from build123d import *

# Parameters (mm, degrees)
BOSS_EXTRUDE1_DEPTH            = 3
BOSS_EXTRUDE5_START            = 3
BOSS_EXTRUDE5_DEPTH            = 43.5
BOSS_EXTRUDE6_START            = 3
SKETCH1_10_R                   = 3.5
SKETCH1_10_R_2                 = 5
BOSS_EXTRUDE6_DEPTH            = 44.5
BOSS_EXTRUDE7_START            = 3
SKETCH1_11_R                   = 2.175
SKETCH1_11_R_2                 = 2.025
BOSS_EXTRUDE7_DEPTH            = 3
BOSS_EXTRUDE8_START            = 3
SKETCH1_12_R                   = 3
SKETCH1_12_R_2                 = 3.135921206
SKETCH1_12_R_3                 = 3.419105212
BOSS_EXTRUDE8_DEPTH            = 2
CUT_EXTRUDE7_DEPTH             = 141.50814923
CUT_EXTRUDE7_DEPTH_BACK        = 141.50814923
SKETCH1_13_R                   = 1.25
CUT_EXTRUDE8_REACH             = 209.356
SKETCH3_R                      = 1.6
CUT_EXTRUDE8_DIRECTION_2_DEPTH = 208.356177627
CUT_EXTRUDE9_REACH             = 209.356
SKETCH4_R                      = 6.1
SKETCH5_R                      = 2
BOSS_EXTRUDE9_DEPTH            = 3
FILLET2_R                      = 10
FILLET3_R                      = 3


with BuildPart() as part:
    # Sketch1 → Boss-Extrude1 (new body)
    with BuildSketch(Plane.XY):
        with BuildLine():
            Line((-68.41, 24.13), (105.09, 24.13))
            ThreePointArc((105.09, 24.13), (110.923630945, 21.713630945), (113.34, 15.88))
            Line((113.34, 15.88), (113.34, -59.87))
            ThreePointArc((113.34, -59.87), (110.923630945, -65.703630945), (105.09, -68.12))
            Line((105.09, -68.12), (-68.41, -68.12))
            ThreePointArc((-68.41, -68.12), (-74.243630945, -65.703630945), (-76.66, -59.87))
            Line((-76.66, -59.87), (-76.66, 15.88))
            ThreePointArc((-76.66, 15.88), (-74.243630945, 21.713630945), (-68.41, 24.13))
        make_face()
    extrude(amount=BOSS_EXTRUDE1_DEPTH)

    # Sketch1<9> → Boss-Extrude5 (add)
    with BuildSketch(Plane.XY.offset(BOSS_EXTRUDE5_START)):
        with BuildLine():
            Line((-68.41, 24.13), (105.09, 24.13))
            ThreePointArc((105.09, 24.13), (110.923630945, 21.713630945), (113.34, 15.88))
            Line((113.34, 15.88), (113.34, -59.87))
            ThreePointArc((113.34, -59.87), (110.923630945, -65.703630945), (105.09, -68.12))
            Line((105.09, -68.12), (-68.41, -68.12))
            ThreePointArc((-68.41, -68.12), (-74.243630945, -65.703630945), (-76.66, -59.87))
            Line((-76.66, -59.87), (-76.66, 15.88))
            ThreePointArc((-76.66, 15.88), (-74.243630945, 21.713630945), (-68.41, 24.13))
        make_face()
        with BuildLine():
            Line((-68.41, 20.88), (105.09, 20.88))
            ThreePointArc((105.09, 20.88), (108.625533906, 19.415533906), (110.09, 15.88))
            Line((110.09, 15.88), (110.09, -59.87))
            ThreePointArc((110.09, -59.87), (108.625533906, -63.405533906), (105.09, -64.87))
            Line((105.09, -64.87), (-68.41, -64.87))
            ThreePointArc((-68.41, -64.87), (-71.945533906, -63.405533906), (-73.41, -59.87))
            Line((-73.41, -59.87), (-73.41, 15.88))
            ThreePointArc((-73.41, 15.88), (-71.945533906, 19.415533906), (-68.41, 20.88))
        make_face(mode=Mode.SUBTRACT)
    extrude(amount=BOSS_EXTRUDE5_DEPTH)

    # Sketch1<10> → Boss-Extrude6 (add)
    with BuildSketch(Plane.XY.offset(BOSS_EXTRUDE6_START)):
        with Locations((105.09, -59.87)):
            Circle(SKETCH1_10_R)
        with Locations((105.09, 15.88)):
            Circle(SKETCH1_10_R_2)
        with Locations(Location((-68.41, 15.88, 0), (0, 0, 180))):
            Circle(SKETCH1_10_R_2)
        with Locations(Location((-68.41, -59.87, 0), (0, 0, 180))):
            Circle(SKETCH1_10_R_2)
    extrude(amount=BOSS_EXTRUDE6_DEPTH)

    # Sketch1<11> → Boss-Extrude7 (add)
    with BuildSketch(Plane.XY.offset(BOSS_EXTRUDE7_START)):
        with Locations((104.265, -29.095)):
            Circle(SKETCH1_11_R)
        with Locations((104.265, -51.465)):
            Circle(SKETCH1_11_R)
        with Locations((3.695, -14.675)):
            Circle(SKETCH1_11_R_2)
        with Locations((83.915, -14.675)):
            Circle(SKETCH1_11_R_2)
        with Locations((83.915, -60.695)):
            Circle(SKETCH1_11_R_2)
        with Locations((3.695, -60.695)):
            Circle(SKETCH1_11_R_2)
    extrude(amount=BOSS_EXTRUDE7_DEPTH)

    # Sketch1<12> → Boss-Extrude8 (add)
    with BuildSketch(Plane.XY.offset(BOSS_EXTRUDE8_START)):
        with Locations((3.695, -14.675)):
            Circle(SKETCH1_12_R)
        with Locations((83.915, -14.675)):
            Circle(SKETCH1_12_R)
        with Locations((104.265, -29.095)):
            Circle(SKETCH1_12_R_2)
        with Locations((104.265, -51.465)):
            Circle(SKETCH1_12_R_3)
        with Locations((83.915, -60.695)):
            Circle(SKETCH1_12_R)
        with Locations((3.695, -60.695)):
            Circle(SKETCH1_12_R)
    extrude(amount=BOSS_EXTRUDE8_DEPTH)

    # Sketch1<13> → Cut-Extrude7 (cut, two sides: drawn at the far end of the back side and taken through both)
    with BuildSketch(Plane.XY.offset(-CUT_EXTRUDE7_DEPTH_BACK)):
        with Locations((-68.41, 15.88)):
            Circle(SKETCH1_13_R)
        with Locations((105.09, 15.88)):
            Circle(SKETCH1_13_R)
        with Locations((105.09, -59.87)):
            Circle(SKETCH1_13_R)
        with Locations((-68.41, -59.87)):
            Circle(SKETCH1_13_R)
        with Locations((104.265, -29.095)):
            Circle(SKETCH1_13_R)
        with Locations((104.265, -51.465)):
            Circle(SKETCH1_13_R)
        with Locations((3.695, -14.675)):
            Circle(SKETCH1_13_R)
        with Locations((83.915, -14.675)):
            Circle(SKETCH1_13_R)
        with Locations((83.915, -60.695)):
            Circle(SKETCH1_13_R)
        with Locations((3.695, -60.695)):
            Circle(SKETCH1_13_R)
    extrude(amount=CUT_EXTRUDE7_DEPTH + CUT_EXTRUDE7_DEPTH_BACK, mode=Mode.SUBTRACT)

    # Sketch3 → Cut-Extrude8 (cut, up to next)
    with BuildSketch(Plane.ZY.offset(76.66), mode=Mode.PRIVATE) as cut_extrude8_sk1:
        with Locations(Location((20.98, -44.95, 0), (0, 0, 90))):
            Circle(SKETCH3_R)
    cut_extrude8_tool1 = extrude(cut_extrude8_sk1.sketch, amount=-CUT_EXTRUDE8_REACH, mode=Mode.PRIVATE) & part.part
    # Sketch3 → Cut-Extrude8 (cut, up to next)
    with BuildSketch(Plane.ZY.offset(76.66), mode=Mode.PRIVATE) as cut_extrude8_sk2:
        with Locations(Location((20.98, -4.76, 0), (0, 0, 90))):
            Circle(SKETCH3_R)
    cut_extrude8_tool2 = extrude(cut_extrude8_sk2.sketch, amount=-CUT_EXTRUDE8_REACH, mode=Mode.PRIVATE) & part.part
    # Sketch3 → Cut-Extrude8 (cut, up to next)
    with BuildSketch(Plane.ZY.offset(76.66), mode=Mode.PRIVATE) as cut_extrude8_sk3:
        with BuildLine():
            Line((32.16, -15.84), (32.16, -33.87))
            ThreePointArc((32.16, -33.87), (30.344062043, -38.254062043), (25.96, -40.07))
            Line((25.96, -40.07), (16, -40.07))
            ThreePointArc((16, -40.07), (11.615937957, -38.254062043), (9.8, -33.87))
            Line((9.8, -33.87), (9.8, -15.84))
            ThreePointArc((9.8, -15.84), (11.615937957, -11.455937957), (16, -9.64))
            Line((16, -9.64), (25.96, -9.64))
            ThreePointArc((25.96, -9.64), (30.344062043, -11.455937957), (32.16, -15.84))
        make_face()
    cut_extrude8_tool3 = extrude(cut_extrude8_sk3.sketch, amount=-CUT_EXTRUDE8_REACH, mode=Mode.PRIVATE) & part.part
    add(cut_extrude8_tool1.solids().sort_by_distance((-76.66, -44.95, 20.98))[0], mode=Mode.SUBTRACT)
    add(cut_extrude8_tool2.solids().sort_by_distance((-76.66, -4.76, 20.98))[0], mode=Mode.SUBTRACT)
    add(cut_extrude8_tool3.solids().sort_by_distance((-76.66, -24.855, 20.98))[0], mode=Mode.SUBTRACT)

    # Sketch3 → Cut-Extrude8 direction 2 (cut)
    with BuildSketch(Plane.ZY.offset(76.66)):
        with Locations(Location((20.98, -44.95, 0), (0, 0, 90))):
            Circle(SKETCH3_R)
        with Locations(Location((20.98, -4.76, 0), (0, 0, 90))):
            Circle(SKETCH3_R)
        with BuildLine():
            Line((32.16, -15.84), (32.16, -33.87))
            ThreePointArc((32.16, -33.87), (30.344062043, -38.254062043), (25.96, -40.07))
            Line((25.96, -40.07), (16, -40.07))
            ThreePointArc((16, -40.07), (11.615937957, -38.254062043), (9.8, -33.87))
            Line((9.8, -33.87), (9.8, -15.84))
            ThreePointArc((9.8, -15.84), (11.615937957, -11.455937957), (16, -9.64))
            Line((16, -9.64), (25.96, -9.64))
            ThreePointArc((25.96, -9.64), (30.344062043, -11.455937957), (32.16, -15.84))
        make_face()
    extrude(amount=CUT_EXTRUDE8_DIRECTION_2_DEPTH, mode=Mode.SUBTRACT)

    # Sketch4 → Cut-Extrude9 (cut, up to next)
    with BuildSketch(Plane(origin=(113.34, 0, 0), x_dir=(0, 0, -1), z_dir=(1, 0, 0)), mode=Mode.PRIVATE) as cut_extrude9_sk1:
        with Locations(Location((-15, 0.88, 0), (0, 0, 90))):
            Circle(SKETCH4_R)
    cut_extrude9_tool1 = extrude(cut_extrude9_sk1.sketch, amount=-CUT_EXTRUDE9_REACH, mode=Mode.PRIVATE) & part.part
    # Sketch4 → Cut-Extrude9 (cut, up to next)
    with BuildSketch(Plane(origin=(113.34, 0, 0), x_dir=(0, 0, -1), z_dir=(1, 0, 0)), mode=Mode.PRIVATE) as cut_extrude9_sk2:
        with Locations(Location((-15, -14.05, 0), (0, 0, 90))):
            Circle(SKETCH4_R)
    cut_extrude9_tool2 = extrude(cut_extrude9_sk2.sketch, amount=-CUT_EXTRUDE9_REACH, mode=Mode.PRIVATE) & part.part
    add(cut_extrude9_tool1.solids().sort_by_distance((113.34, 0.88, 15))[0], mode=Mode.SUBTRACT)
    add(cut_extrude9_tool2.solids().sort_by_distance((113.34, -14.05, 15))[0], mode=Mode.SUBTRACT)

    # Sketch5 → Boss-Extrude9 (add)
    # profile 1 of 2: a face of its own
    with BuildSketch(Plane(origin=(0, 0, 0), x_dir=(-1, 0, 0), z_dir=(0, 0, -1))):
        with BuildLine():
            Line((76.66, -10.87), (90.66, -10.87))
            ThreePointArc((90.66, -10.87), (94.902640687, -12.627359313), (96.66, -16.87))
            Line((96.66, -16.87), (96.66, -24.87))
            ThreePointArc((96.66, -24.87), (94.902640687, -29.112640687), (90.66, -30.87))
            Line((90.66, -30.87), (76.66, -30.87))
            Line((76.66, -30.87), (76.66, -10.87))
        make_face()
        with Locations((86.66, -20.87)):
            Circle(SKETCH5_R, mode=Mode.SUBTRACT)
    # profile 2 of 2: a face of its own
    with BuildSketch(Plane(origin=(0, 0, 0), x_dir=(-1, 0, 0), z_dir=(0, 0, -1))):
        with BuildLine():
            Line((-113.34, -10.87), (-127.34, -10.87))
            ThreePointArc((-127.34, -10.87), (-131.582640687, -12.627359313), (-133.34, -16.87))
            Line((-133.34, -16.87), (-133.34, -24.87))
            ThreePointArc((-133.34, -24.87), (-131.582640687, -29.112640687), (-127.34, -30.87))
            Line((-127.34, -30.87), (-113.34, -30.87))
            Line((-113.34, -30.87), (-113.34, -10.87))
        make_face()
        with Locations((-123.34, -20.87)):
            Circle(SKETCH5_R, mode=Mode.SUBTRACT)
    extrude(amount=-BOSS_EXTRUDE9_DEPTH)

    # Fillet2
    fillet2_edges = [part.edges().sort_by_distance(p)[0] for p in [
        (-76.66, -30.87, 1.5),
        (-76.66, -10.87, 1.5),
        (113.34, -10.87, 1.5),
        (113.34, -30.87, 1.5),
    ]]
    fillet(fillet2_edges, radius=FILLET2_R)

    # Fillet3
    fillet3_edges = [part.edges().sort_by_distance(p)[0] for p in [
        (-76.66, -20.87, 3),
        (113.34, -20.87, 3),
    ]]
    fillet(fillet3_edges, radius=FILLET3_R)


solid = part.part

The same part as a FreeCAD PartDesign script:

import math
import FreeCAD as App
import Part
import Sketcher

V = App.Vector
Q = App.Units.Quantity


def edges_at(feature, points):
    """Names of the edges that pass closest to the given points."""
    edges = feature.Shape.Edges
    near = lambda p: min(range(len(edges)), key=lambda i: edges[i].distToShape(Part.Vertex(*p))[0])
    return sorted({f"Edge{near(p) + 1}" for p in points})

doc = App.newDocument("Part")
params = doc.addObject("Spreadsheet::Sheet", "Params")
for row, (alias, value) in enumerate([
    ("sketch1_radius", "8.25 mm"),
    ("sketch1_width", "173.5 mm"),
    ("pad1_length", "3 mm"),
    ("sketch2_radius", "5 mm"),
    ("sketch2_radius2", "8.25 mm"),
    ("sketch2_width", "173.5 mm"),
    ("pad2_length", "43.5 mm"),
    ("sketch3_diameter", "7 mm"),
    ("sketch3_diameter2", "10 mm"),
    ("pad3_length", "44.5 mm"),
    ("sketch4_diameter", "4.35 mm"),
    ("sketch4_diameter2", "4.05 mm"),
    ("pad4_length", "3 mm"),
    ("sketch5_diameter", "6 mm"),
    ("pad5_length", "2 mm"),
    ("sketch6_diameter", "2.5 mm"),
    ("sketch7_diameter", "3.2 mm"),
    ("sketch8_diameter", "3.2 mm"),
    ("sketch9_radius", "6.2 mm"),
    ("sketch9_width", "18.03 mm"),
    ("sketch9_height", "9.96 mm"),
    ("sketch10_diameter", "3.2 mm"),
    ("sketch10_radius", "6.2 mm"),
    ("sketch10_width", "18.03 mm"),
    ("sketch10_height", "9.96 mm"),
    ("pocket5_length", "208.356178 mm"),
    ("sketch11_diameter", "12.2 mm"),
    ("sketch12_diameter", "12.2 mm"),
    ("sketch13_diameter", "4 mm"),
    ("sketch13_radius", "6 mm"),
    ("sketch13_width", "14 mm"),
    ("sketch13_height", "20 mm"),
    ("pad6_length", "3 mm"),
    ("fillet_radius", "10 mm"),
    ("fillet2_radius", "3 mm"),
], start=1):
    params.set(f"A{row}", alias)
    params.set(f"B{row}", "=" + value)
    params.setAlias(f"B{row}", alias)

body = doc.addObject("PartDesign::Body", "Body")

sketch1 = body.newObject("Sketcher::SketchObject", "Sketch")
sketch1.AttachmentSupport = (doc.getObject("XY_Plane"), [""])
sketch1.MapMode = "FlatFace"
sketch1.addGeometry([
    Part.LineSegment(V(105.09, 24.13, 0), V(-68.41, 24.13, 0)),
    Part.ArcOfCircle(Part.Circle(V(-68.41, 15.88, 0), V(0, 0, 1), 8.25), math.radians(90), math.radians(180)),
    Part.LineSegment(V(-76.66, 15.88, 0), V(-76.66, -59.87, 0)),
    Part.ArcOfCircle(Part.Circle(V(-68.41, -59.87, 0), V(0, 0, 1), 8.25), math.radians(180), math.radians(270)),
    Part.LineSegment(V(-68.41, -68.12, 0), V(105.09, -68.12, 0)),
    Part.ArcOfCircle(Part.Circle(V(105.09, -59.87, 0), V(0, 0, 1), 8.25), math.radians(-90), math.radians(0)),
    Part.LineSegment(V(113.34, -59.87, 0), V(113.34, 15.88, 0)),
    Part.ArcOfCircle(Part.Circle(V(105.09, 15.88, 0), V(0, 0, 1), 8.25), math.radians(0), math.radians(90)),
], False)
sketch1.addConstraint([
    Sketcher.Constraint("Tangent", 0, 2, 1, 1),
    Sketcher.Constraint("Tangent", 1, 2, 2, 1),
    Sketcher.Constraint("Tangent", 2, 2, 3, 1),
    Sketcher.Constraint("Tangent", 3, 2, 4, 1),
    Sketcher.Constraint("Tangent", 4, 2, 5, 1),
    Sketcher.Constraint("Tangent", 5, 2, 6, 1),
    Sketcher.Constraint("Tangent", 6, 2, 7, 1),
    Sketcher.Constraint("Tangent", 7, 2, 0, 1),
    Sketcher.Constraint("Horizontal", 0),
    Sketcher.Constraint("Vertical", 2),
    Sketcher.Constraint("Horizontal", 4),
    Sketcher.Constraint("Vertical", 6),
    Sketcher.Constraint("Equal", 1, 3),
    Sketcher.Constraint("Equal", 3, 5),
    Sketcher.Constraint("Equal", 5, 7),
    Sketcher.Constraint("Radius", 1, Q("8.25 mm")),
    Sketcher.Constraint("DistanceX", 0, 2, 0, 1, Q("173.5 mm")),
    Sketcher.Constraint("DistanceY", 3, 3, 0, 2, Q("84 mm")),
    Sketcher.Constraint("DistanceX", 1, 3, -1, 1, Q("68.41 mm")),
    Sketcher.Constraint("DistanceY", -1, 1, 1, 3, Q("15.88 mm")),
])
sketch1.setExpression("Constraints[15]", "Params.sketch1_radius")
sketch1.setExpression("Constraints[16]", "Params.sketch1_width")
pad1 = body.newObject("PartDesign::Pad", "Pad")
pad1.Profile = sketch1
pad1.setExpression("Length", "Params.pad1_length")

sketch2 = body.newObject("Sketcher::SketchObject", "Sketch001")
sketch2.AttachmentSupport = (doc.getObject("XY_Plane"), [""])
sketch2.MapMode = "FlatFace"
sketch2.AttachmentOffset = App.Placement(V(0, 0, 3), App.Rotation())
sketch2.addGeometry([
    Part.LineSegment(V(105.09, 24.13, 0), V(-68.41, 24.13, 0)),
    Part.ArcOfCircle(Part.Circle(V(-68.41, 15.88, 0), V(0, 0, 1), 8.25), math.radians(90), math.radians(180)),
    Part.LineSegment(V(-76.66, 15.88, 0), V(-76.66, -59.87, 0)),
    Part.ArcOfCircle(Part.Circle(V(-68.41, -59.87, 0), V(0, 0, 1), 8.25), math.radians(180), math.radians(270)),
    Part.LineSegment(V(-68.41, -68.12, 0), V(105.09, -68.12, 0)),
    Part.ArcOfCircle(Part.Circle(V(105.09, -59.87, 0), V(0, 0, 1), 8.25), math.radians(-90), math.radians(0)),
    Part.LineSegment(V(113.34, -59.87, 0), V(113.34, 15.88, 0)),
    Part.ArcOfCircle(Part.Circle(V(105.09, 15.88, 0), V(0, 0, 1), 8.25), math.radians(0), math.radians(90)),
    Part.LineSegment(V(-68.41, 20.88, 0), V(105.09, 20.88, 0)),
    Part.ArcOfCircle(Part.Circle(V(105.09, 15.88, 0), V(0, 0, 1), 5), math.radians(0), math.radians(90)),
    Part.LineSegment(V(110.09, 15.88, 0), V(110.09, -59.87, 0)),
    Part.ArcOfCircle(Part.Circle(V(105.09, -59.87, 0), V(0, 0, 1), 5), math.radians(-90), math.radians(0)),
    Part.LineSegment(V(105.09, -64.87, 0), V(-68.41, -64.87, 0)),
    Part.ArcOfCircle(Part.Circle(V(-68.41, -59.87, 0), V(0, 0, 1), 5), math.radians(180), math.radians(270)),
    Part.LineSegment(V(-73.41, -59.87, 0), V(-73.41, 15.88, 0)),
    Part.ArcOfCircle(Part.Circle(V(-68.41, 15.88, 0), V(0, 0, 1), 5), math.radians(90), math.radians(180)),
], False)
sketch2.addConstraint([
    Sketcher.Constraint("Tangent", 0, 2, 1, 1),
    Sketcher.Constraint("Tangent", 1, 2, 2, 1),
    Sketcher.Constraint("Tangent", 2, 2, 3, 1),
    Sketcher.Constraint("Tangent", 3, 2, 4, 1),
    Sketcher.Constraint("Tangent", 4, 2, 5, 1),
    Sketcher.Constraint("Tangent", 5, 2, 6, 1),
    Sketcher.Constraint("Tangent", 6, 2, 7, 1),
    Sketcher.Constraint("Tangent", 7, 2, 0, 1),
    Sketcher.Constraint("Tangent", 8, 2, 9, 2),
    Sketcher.Constraint("Tangent", 9, 1, 10, 1),
    Sketcher.Constraint("Tangent", 10, 2, 11, 2),
    Sketcher.Constraint("Tangent", 11, 1, 12, 1),
    Sketcher.Constraint("Tangent", 12, 2, 13, 2),
    Sketcher.Constraint("Tangent", 13, 1, 14, 1),
    Sketcher.Constraint("Tangent", 14, 2, 15, 2),
    Sketcher.Constraint("Tangent", 15, 1, 8, 1),
    Sketcher.Constraint("Horizontal", 0),
    Sketcher.Constraint("Vertical", 2),
    Sketcher.Constraint("Horizontal", 4),
    Sketcher.Constraint("Vertical", 6),
    Sketcher.Constraint("Horizontal", 8),
    Sketcher.Constraint("Vertical", 10),
    Sketcher.Constraint("Horizontal", 12),
    Sketcher.Constraint("Vertical", 14),
    Sketcher.Constraint("Coincident", 9, 3, 7, 3),
    Sketcher.Constraint("Coincident", 11, 3, 5, 3),
    Sketcher.Constraint("Coincident", 13, 3, 3, 3),
    Sketcher.Constraint("Equal", 1, 3),
    Sketcher.Constraint("Equal", 3, 5),
    Sketcher.Constraint("Equal", 5, 7),
    Sketcher.Constraint("Equal", 13, 15),
    Sketcher.Constraint("Radius", 9, Q("5 mm")),
    Sketcher.Constraint("Radius", 1, Q("8.25 mm")),
    Sketcher.Constraint("DistanceX", 0, 2, 0, 1, Q("173.5 mm")),
    Sketcher.Constraint("DistanceY", 13, 3, 0, 2, Q("84 mm")),
    Sketcher.Constraint("DistanceX", 1, 3, -1, 1, Q("68.41 mm")),
    Sketcher.Constraint("DistanceY", -1, 1, 1, 3, Q("15.88 mm")),
])
sketch2.setExpression("Constraints[31]", "Params.sketch2_radius")
sketch2.setExpression("Constraints[32]", "Params.sketch2_radius2")
sketch2.setExpression("Constraints[33]", "Params.sketch2_width")
pad2 = body.newObject("PartDesign::Pad", "Pad001")
pad2.Profile = sketch2
pad2.setExpression("Length", "Params.pad2_length")

sketch3 = body.newObject("Sketcher::SketchObject", "Sketch002")
sketch3.AttachmentSupport = (doc.getObject("XY_Plane"), [""])
sketch3.MapMode = "FlatFace"
sketch3.AttachmentOffset = App.Placement(V(0, 0, 3), App.Rotation())
sketch3.addGeometry([
    Part.Circle(V(105.09, -59.87, 0), V(0, 0, 1), 3.5),
    Part.Circle(V(105.09, 15.88, 0), V(0, 0, 1), 5),
    Part.Circle(V(-68.41, 15.88, 0), V(0, 0, 1), 5),
    Part.Circle(V(-68.41, -59.87, 0), V(0, 0, 1), 5),
], False)
sketch3.addConstraint([
    Sketcher.Constraint("Equal", 1, 2),
    Sketcher.Constraint("Equal", 2, 3),
    Sketcher.Constraint("Horizontal", 1, 3, 2, 3),
    Sketcher.Constraint("Horizontal", 0, 3, 3, 3),
    Sketcher.Constraint("Vertical", 0, 3, 1, 3),
    Sketcher.Constraint("Vertical", 2, 3, 3, 3),
    Sketcher.Constraint("Diameter", 0, Q("7 mm")),
    Sketcher.Constraint("Diameter", 1, Q("10 mm")),
    Sketcher.Constraint("DistanceX", 2, 3, 1, 3, Q("173.5 mm")),
    Sketcher.Constraint("DistanceX", -1, 1, 0, 3, Q("105.09 mm")),
    Sketcher.Constraint("DistanceY", 0, 3, -1, 1, Q("59.87 mm")),
    Sketcher.Constraint("DistanceY", -1, 1, 1, 3, Q("15.88 mm")),
])
sketch3.setExpression("Constraints[6]", "Params.sketch3_diameter")
sketch3.setExpression("Constraints[7]", "Params.sketch3_diameter2")
pad3 = body.newObject("PartDesign::Pad", "Pad002")
pad3.Profile = sketch3
pad3.setExpression("Length", "Params.pad3_length")

sketch4 = body.newObject("Sketcher::SketchObject", "Sketch003")
sketch4.AttachmentSupport = (doc.getObject("XY_Plane"), [""])
sketch4.MapMode = "FlatFace"
sketch4.AttachmentOffset = App.Placement(V(0, 0, 3), App.Rotation())
sketch4.addGeometry([
    Part.Circle(V(104.265, -29.095, 0), V(0, 0, 1), 2.175),
    Part.Circle(V(104.265, -51.465, 0), V(0, 0, 1), 2.175),
    Part.Circle(V(3.695, -14.675, 0), V(0, 0, 1), 2.025),
    Part.Circle(V(83.915, -14.675, 0), V(0, 0, 1), 2.025),
    Part.Circle(V(83.915, -60.695, 0), V(0, 0, 1), 2.025),
    Part.Circle(V(3.695, -60.695, 0), V(0, 0, 1), 2.025),
], False)
sketch4.addConstraint([
    Sketcher.Constraint("Equal", 0, 1),
    Sketcher.Constraint("Equal", 2, 3),
    Sketcher.Constraint("Equal", 3, 4),
    Sketcher.Constraint("Equal", 4, 5),
    Sketcher.Constraint("Horizontal", 2, 3, 3, 3),
    Sketcher.Constraint("Horizontal", 4, 3, 5, 3),
    Sketcher.Constraint("Vertical", 0, 3, 1, 3),
    Sketcher.Constraint("Vertical", 3, 3, 4, 3),
    Sketcher.Constraint("Vertical", 2, 3, 5, 3),
    Sketcher.Constraint("Diameter", 0, Q("4.35 mm")),
    Sketcher.Constraint("Diameter", 2, Q("4.05 mm")),
    Sketcher.Constraint("DistanceY", 4, 3, 0, 3, Q("31.6 mm")),
    Sketcher.Constraint("DistanceY", 1, 3, 0, 3, Q("22.37 mm")),
    Sketcher.Constraint("DistanceX", 2, 3, 0, 3, Q("100.57 mm")),
    Sketcher.Constraint("DistanceY", 0, 3, 2, 3, Q("14.42 mm")),
    Sketcher.Constraint("DistanceX", 3, 3, 0, 3, Q("20.35 mm")),
    Sketcher.Constraint("DistanceX", -1, 1, 0, 3, Q("104.265 mm")),
    Sketcher.Constraint("DistanceY", 0, 3, -1, 1, Q("29.095 mm")),
])
sketch4.setExpression("Constraints[9]", "Params.sketch4_diameter")
sketch4.setExpression("Constraints[10]", "Params.sketch4_diameter2")
pad4 = body.newObject("PartDesign::Pad", "Pad003")
pad4.Profile = sketch4
pad4.setExpression("Length", "Params.pad4_length")

sketch5 = body.newObject("Sketcher::SketchObject", "Sketch004")
sketch5.AttachmentSupport = (doc.getObject("XY_Plane"), [""])
sketch5.MapMode = "FlatFace"
sketch5.AttachmentOffset = App.Placement(V(0, 0, 3), App.Rotation())
sketch5.addGeometry([
    Part.Circle(V(3.695, -14.675, 0), V(0, 0, 1), 3),
    Part.Circle(V(83.915, -14.675, 0), V(0, 0, 1), 3),
    Part.Circle(V(104.265, -29.095, 0), V(0, 0, 1), 3.135921),
    Part.Circle(V(104.265, -51.465, 0), V(0, 0, 1), 3.419105),
    Part.Circle(V(83.915, -60.695, 0), V(0, 0, 1), 3),
    Part.Circle(V(3.695, -60.695, 0), V(0, 0, 1), 3),
], False)
sketch5.addConstraint([
    Sketcher.Constraint("Equal", 0, 1),
    Sketcher.Constraint("Equal", 1, 4),
    Sketcher.Constraint("Equal", 4, 5),
    Sketcher.Constraint("Horizontal", 0, 3, 1, 3),
    Sketcher.Constraint("Horizontal", 4, 3, 5, 3),
    Sketcher.Constraint("Vertical", 2, 3, 3, 3),
    Sketcher.Constraint("Vertical", 1, 3, 4, 3),
    Sketcher.Constraint("Vertical", 0, 3, 5, 3),
    Sketcher.Constraint("Diameter", 0, Q("6 mm")),
    Sketcher.Constraint("DistanceY", 4, 3, 2, 3, Q("31.6 mm")),
    Sketcher.Constraint("Diameter", 3, Q("6.83821 mm")),
    Sketcher.Constraint("DistanceX", 0, 3, 1, 3, Q("80.22 mm")),
    Sketcher.Constraint("DistanceX", 1, 3, 2, 3, Q("20.35 mm")),
    Sketcher.Constraint("DistanceY", 2, 3, 1, 3, Q("14.42 mm")),
    Sketcher.Constraint("DistanceY", 3, 3, 2, 3, Q("22.37 mm")),
    Sketcher.Constraint("Diameter", 2, Q("6.271842 mm")),
    Sketcher.Constraint("DistanceX", -1, 1, 0, 3, Q("3.695 mm")),
    Sketcher.Constraint("DistanceY", 0, 3, -1, 1, Q("14.675 mm")),
])
sketch5.setExpression("Constraints[8]", "Params.sketch5_diameter")
pad5 = body.newObject("PartDesign::Pad", "Pad004")
pad5.Profile = sketch5
pad5.setExpression("Length", "Params.pad5_length")

sketch6 = body.newObject("Sketcher::SketchObject", "Sketch005")
sketch6.AttachmentSupport = (doc.getObject("XY_Plane"), [""])
sketch6.MapMode = "FlatFace"
sketch6.addGeometry([
    Part.Circle(V(-68.41, 15.88, 0), V(0, 0, 1), 1.25),
    Part.Circle(V(105.09, 15.88, 0), V(0, 0, 1), 1.25),
    Part.Circle(V(105.09, -59.87, 0), V(0, 0, 1), 1.25),
    Part.Circle(V(-68.41, -59.87, 0), V(0, 0, 1), 1.25),
    Part.Circle(V(104.265, -29.095, 0), V(0, 0, 1), 1.25),
    Part.Circle(V(104.265, -51.465, 0), V(0, 0, 1), 1.25),
    Part.Circle(V(3.695, -14.675, 0), V(0, 0, 1), 1.25),
    Part.Circle(V(83.915, -14.675, 0), V(0, 0, 1), 1.25),
    Part.Circle(V(83.915, -60.695, 0), V(0, 0, 1), 1.25),
    Part.Circle(V(3.695, -60.695, 0), V(0, 0, 1), 1.25),
], False)
sketch6.addConstraint([
    Sketcher.Constraint("Equal", 0, 1),
    Sketcher.Constraint("Equal", 1, 2),
    Sketcher.Constraint("Equal", 2, 3),
    Sketcher.Constraint("Equal", 3, 4),
    Sketcher.Constraint("Equal", 4, 5),
    Sketcher.Constraint("Equal", 5, 6),
    Sketcher.Constraint("Equal", 6, 7),
    Sketcher.Constraint("Equal", 7, 8),
    Sketcher.Constraint("Equal", 8, 9),
    Sketcher.Constraint("Horizontal", 0, 3, 1, 3),
    Sketcher.Constraint("Horizontal", 2, 3, 3, 3),
    Sketcher.Constraint("Horizontal", 6, 3, 7, 3),
    Sketcher.Constraint("Horizontal", 8, 3, 9, 3),
    Sketcher.Constraint("Vertical", 1, 3, 2, 3),
    Sketcher.Constraint("Vertical", 0, 3, 3, 3),
    Sketcher.Constraint("Vertical", 4, 3, 5, 3),
    Sketcher.Constraint("Vertical", 7, 3, 8, 3),
    Sketcher.Constraint("Vertical", 6, 3, 9, 3),
    Sketcher.Constraint("Diameter", 0, Q("2.5 mm")),
    Sketcher.Constraint("DistanceX", 0, 3, 1, 3, Q("173.5 mm")),
    Sketcher.Constraint("DistanceY", 8, 3, 4, 3, Q("31.6 mm")),
    Sketcher.Constraint("DistanceX", 0, 3, -1, 1, Q("68.41 mm")),
    Sketcher.Constraint("DistanceY", -1, 1, 0, 3, Q("15.88 mm")),
    Sketcher.Constraint("DistanceY", 2, 3, -1, 1, Q("59.87 mm")),
    Sketcher.Constraint("DistanceY", 5, 3, 4, 3, Q("22.37 mm")),
    Sketcher.Constraint("DistanceX", 6, 3, 4, 3, Q("100.57 mm")),
    Sketcher.Constraint("DistanceY", 4, 3, 6, 3, Q("14.42 mm")),
    Sketcher.Constraint("DistanceX", 7, 3, 4, 3, Q("20.35 mm")),
    Sketcher.Constraint("DistanceX", -1, 1, 4, 3, Q("104.265 mm")),
    Sketcher.Constraint("DistanceY", 4, 3, -1, 1, Q("29.095 mm")),
])
sketch6.setExpression("Constraints[18]", "Params.sketch6_diameter")
pocket1 = body.newObject("PartDesign::Pocket", "Pocket")
pocket1.Profile = sketch6
pocket1.Type = "ThroughAll"
pocket1.Midplane = True

sketch7 = body.newObject("Sketcher::SketchObject", "Sketch006")
sketch7.AttachmentSupport = (doc.getObject("YZ_Plane"), [""])
sketch7.MapMode = "FlatFace"
sketch7.AttachmentOffset = App.Placement(V(0, 0, -76.66), App.Rotation())
sketch7.addGeometry(Part.Circle(V(-44.95, 20.98, 0), V(0, 0, 1), 1.6), False)
sketch7.addConstraint([
    Sketcher.Constraint("Diameter", 0, Q("3.2 mm")),
    Sketcher.Constraint("DistanceX", 0, 3, -1, 1, Q("44.95 mm")),
    Sketcher.Constraint("DistanceY", -1, 1, 0, 3, Q("20.98 mm")),
])
sketch7.setExpression("Constraints[0]", "Params.sketch7_diameter")
pocket2 = body.newObject("PartDesign::Pocket", "Pocket001")
pocket2.Profile = sketch7
pocket2.Type = "UpToFirst"
pocket2.Reversed = True

sketch8 = body.newObject("Sketcher::SketchObject", "Sketch007")
sketch8.AttachmentSupport = (doc.getObject("YZ_Plane"), [""])
sketch8.MapMode = "FlatFace"
sketch8.AttachmentOffset = App.Placement(V(0, 0, -76.66), App.Rotation())
sketch8.addGeometry(Part.Circle(V(-4.76, 20.98, 0), V(0, 0, 1), 1.6), False)
sketch8.addConstraint([
    Sketcher.Constraint("Diameter", 0, Q("3.2 mm")),
    Sketcher.Constraint("DistanceX", 0, 3, -1, 1, Q("4.76 mm")),
    Sketcher.Constraint("DistanceY", -1, 1, 0, 3, Q("20.98 mm")),
])
sketch8.setExpression("Constraints[0]", "Params.sketch8_diameter")
pocket3 = body.newObject("PartDesign::Pocket", "Pocket002")
pocket3.Profile = sketch8
pocket3.Type = "UpToFirst"
pocket3.Reversed = True

sketch9 = body.newObject("Sketcher::SketchObject", "Sketch008")
sketch9.AttachmentSupport = (doc.getObject("YZ_Plane"), [""])
sketch9.MapMode = "FlatFace"
sketch9.AttachmentOffset = App.Placement(V(0, 0, -76.66), App.Rotation())
sketch9.addGeometry([
    Part.LineSegment(V(-33.87, 32.16, 0), V(-15.84, 32.16, 0)),
    Part.ArcOfCircle(Part.Circle(V(-15.84, 25.96, 0), V(0, 0, 1), 6.2), math.radians(0), math.radians(90)),
    Part.LineSegment(V(-9.64, 25.96, 0), V(-9.64, 16, 0)),
    Part.ArcOfCircle(Part.Circle(V(-15.84, 16, 0), V(0, 0, 1), 6.2), math.radians(-90), math.radians(0)),
    Part.LineSegment(V(-15.84, 9.8, 0), V(-33.87, 9.8, 0)),
    Part.ArcOfCircle(Part.Circle(V(-33.87, 16, 0), V(0, 0, 1), 6.2), math.radians(-180), math.radians(-90)),
    Part.LineSegment(V(-40.07, 16, 0), V(-40.07, 25.96, 0)),
    Part.ArcOfCircle(Part.Circle(V(-33.87, 25.96, 0), V(0, 0, 1), 6.2), math.radians(90), math.radians(180)),
], False)
sketch9.addConstraint([
    Sketcher.Constraint("Tangent", 0, 2, 1, 2),
    Sketcher.Constraint("Tangent", 1, 1, 2, 1),
    Sketcher.Constraint("Tangent", 2, 2, 3, 2),
    Sketcher.Constraint("Tangent", 3, 1, 4, 1),
    Sketcher.Constraint("Tangent", 4, 2, 5, 2),
    Sketcher.Constraint("Tangent", 5, 1, 6, 1),
    Sketcher.Constraint("Tangent", 6, 2, 7, 2),
    Sketcher.Constraint("Tangent", 7, 1, 0, 1),
    Sketcher.Constraint("Horizontal", 0),
    Sketcher.Constraint("Vertical", 2),
    Sketcher.Constraint("Horizontal", 4),
    Sketcher.Constraint("Vertical", 6),
    Sketcher.Constraint("Equal", 1, 3),
    Sketcher.Constraint("Equal", 3, 5),
    Sketcher.Constraint("Equal", 5, 7),
    Sketcher.Constraint("Radius", 1, Q("6.2 mm")),
    Sketcher.Constraint("DistanceY", -1, 1, 3, 3, Q("16 mm")),
    Sketcher.Constraint("DistanceX", 0, 1, 0, 2, Q("18.03 mm")),
    Sketcher.Constraint("DistanceY", 2, 2, 2, 1, Q("9.96 mm")),
    Sketcher.Constraint("DistanceX", 1, 3, -1, 1, Q("15.84 mm")),
])
sketch9.setExpression("Constraints[15]", "Params.sketch9_radius")
sketch9.setExpression("Constraints[17]", "Params.sketch9_width")
sketch9.setExpression("Constraints[18]", "Params.sketch9_height")
pocket4 = body.newObject("PartDesign::Pocket", "Pocket003")
pocket4.Profile = sketch9
pocket4.Type = "UpToFirst"
pocket4.Reversed = True

sketch10 = body.newObject("Sketcher::SketchObject", "Sketch009")
sketch10.AttachmentSupport = (doc.getObject("YZ_Plane"), [""])
sketch10.MapMode = "FlatFace"
sketch10.AttachmentOffset = App.Placement(V(0, 0, -76.66), App.Rotation())
sketch10.addGeometry([
    Part.Circle(V(-44.95, 20.98, 0), V(0, 0, 1), 1.6),
    Part.Circle(V(-4.76, 20.98, 0), V(0, 0, 1), 1.6),
    Part.LineSegment(V(-33.87, 32.16, 0), V(-15.84, 32.16, 0)),
    Part.ArcOfCircle(Part.Circle(V(-15.84, 25.96, 0), V(0, 0, 1), 6.2), math.radians(0), math.radians(90)),
    Part.LineSegment(V(-9.64, 25.96, 0), V(-9.64, 16, 0)),
    Part.ArcOfCircle(Part.Circle(V(-15.84, 16, 0), V(0, 0, 1), 6.2), math.radians(-90), math.radians(0)),
    Part.LineSegment(V(-15.84, 9.8, 0), V(-33.87, 9.8, 0)),
    Part.ArcOfCircle(Part.Circle(V(-33.87, 16, 0), V(0, 0, 1), 6.2), math.radians(-180), math.radians(-90)),
    Part.LineSegment(V(-40.07, 16, 0), V(-40.07, 25.96, 0)),
    Part.ArcOfCircle(Part.Circle(V(-33.87, 25.96, 0), V(0, 0, 1), 6.2), math.radians(90), math.radians(180)),
], False)
sketch10.addConstraint([
    Sketcher.Constraint("Tangent", 2, 2, 3, 2),
    Sketcher.Constraint("Tangent", 3, 1, 4, 1),
    Sketcher.Constraint("Tangent", 4, 2, 5, 2),
    Sketcher.Constraint("Tangent", 5, 1, 6, 1),
    Sketcher.Constraint("Tangent", 6, 2, 7, 2),
    Sketcher.Constraint("Tangent", 7, 1, 8, 1),
    Sketcher.Constraint("Tangent", 8, 2, 9, 2),
    Sketcher.Constraint("Tangent", 9, 1, 2, 1),
    Sketcher.Constraint("Horizontal", 2),
    Sketcher.Constraint("Vertical", 4),
    Sketcher.Constraint("Horizontal", 6),
    Sketcher.Constraint("Vertical", 8),
    Sketcher.Constraint("Equal", 0, 1),
    Sketcher.Constraint("Equal", 3, 5),
    Sketcher.Constraint("Equal", 5, 7),
    Sketcher.Constraint("Equal", 7, 9),
    Sketcher.Constraint("Horizontal", 0, 3, 1, 3),
    Sketcher.Constraint("Diameter", 0, Q("3.2 mm")),
    Sketcher.Constraint("Radius", 3, Q("6.2 mm")),
    Sketcher.Constraint("DistanceY", -1, 1, 5, 3, Q("16 mm")),
    Sketcher.Constraint("DistanceX", 2, 1, 2, 2, Q("18.03 mm")),
    Sketcher.Constraint("DistanceY", 4, 2, 4, 1, Q("9.96 mm")),
    Sketcher.Constraint("DistanceX", 0, 3, -1, 1, Q("44.95 mm")),
    Sketcher.Constraint("DistanceY", -1, 1, 0, 3, Q("20.98 mm")),
    Sketcher.Constraint("DistanceX", 1, 3, -1, 1, Q("4.76 mm")),
    Sketcher.Constraint("DistanceX", 3, 3, -1, 1, Q("15.84 mm")),
])
sketch10.setExpression("Constraints[17]", "Params.sketch10_diameter")
sketch10.setExpression("Constraints[18]", "Params.sketch10_radius")
sketch10.setExpression("Constraints[20]", "Params.sketch10_width")
sketch10.setExpression("Constraints[21]", "Params.sketch10_height")
pocket5 = body.newObject("PartDesign::Pocket", "Pocket004")
pocket5.Profile = sketch10
pocket5.setExpression("Length", "Params.pocket5_length")

sketch11 = body.newObject("Sketcher::SketchObject", "Sketch010")
sketch11.AttachmentSupport = (doc.getObject("YZ_Plane"), [""])
sketch11.MapMode = "FlatFace"
sketch11.AttachmentOffset = App.Placement(V(0, 0, 113.34), App.Rotation())
sketch11.addGeometry(Part.Circle(V(0.88, 15, 0), V(0, 0, 1), 6.1), False)
sketch11.addConstraint([
    Sketcher.Constraint("Diameter", 0, Q("12.2 mm")),
    Sketcher.Constraint("DistanceY", -1, 1, 0, 3, Q("15 mm")),
    Sketcher.Constraint("DistanceX", -1, 1, 0, 3, Q("0.88 mm")),
])
sketch11.setExpression("Constraints[0]", "Params.sketch11_diameter")
pocket6 = body.newObject("PartDesign::Pocket", "Pocket005")
pocket6.Profile = sketch11
pocket6.Type = "UpToFirst"

sketch12 = body.newObject("Sketcher::SketchObject", "Sketch011")
sketch12.AttachmentSupport = (doc.getObject("YZ_Plane"), [""])
sketch12.MapMode = "FlatFace"
sketch12.AttachmentOffset = App.Placement(V(0, 0, 113.34), App.Rotation())
sketch12.addGeometry(Part.Circle(V(-14.05, 15, 0), V(0, 0, 1), 6.1), False)
sketch12.addConstraint([
    Sketcher.Constraint("Diameter", 0, Q("12.2 mm")),
    Sketcher.Constraint("DistanceY", -1, 1, 0, 3, Q("15 mm")),
    Sketcher.Constraint("DistanceX", 0, 3, -1, 1, Q("14.05 mm")),
])
sketch12.setExpression("Constraints[0]", "Params.sketch12_diameter")
pocket7 = body.newObject("PartDesign::Pocket", "Pocket006")
pocket7.Profile = sketch12
pocket7.Type = "UpToFirst"

sketch13 = body.newObject("Sketcher::SketchObject", "Sketch012")
sketch13.AttachmentSupport = (doc.getObject("XY_Plane"), [""])
sketch13.MapMode = "FlatFace"
sketch13.addGeometry([
    Part.LineSegment(V(-90.66, -10.87, 0), V(-76.66, -10.87, 0)),
    Part.LineSegment(V(-76.66, -10.87, 0), V(-76.66, -30.87, 0)),
    Part.LineSegment(V(-76.66, -30.87, 0), V(-90.66, -30.87, 0)),
    Part.ArcOfCircle(Part.Circle(V(-90.66, -24.87, 0), V(0, 0, 1), 6), math.radians(180), math.radians(270)),
    Part.LineSegment(V(-96.66, -24.87, 0), V(-96.66, -16.87, 0)),
    Part.ArcOfCircle(Part.Circle(V(-90.66, -16.87, 0), V(0, 0, 1), 6), math.radians(90), math.radians(180)),
    Part.Circle(V(-86.66, -20.87, 0), V(0, 0, 1), 2),
    Part.LineSegment(V(113.34, -10.87, 0), V(127.34, -10.87, 0)),
    Part.ArcOfCircle(Part.Circle(V(127.34, -16.87, 0), V(0, 0, 1), 6), math.radians(0), math.radians(90)),
    Part.LineSegment(V(133.34, -16.87, 0), V(133.34, -24.87, 0)),
    Part.ArcOfCircle(Part.Circle(V(127.34, -24.87, 0), V(0, 0, 1), 6), math.radians(-90), math.radians(0)),
    Part.LineSegment(V(127.34, -30.87, 0), V(113.34, -30.87, 0)),
    Part.LineSegment(V(113.34, -30.87, 0), V(113.34, -10.87, 0)),
    Part.Circle(V(123.34, -20.87, 0), V(0, 0, 1), 2),
], False)
sketch13.addConstraint([
    Sketcher.Constraint("Coincident", 0, 2, 1, 1),
    Sketcher.Constraint("Coincident", 1, 2, 2, 1),
    Sketcher.Constraint("Tangent", 2, 2, 3, 2),
    Sketcher.Constraint("Tangent", 3, 1, 4, 1),
    Sketcher.Constraint("Tangent", 4, 2, 5, 2),
    Sketcher.Constraint("Tangent", 5, 1, 0, 1),
    Sketcher.Constraint("Tangent", 7, 2, 8, 2),
    Sketcher.Constraint("Tangent", 8, 1, 9, 1),
    Sketcher.Constraint("Tangent", 9, 2, 10, 2),
    Sketcher.Constraint("Tangent", 10, 1, 11, 1),
    Sketcher.Constraint("Coincident", 11, 2, 12, 1),
    Sketcher.Constraint("Coincident", 12, 2, 7, 1),
    Sketcher.Constraint("Horizontal", 0),
    Sketcher.Constraint("Vertical", 1),
    Sketcher.Constraint("Horizontal", 2),
    Sketcher.Constraint("Vertical", 4),
    Sketcher.Constraint("Horizontal", 7),
    Sketcher.Constraint("Vertical", 9),
    Sketcher.Constraint("Horizontal", 11),
    Sketcher.Constraint("Vertical", 12),
    Sketcher.Constraint("Equal", 3, 5),
    Sketcher.Constraint("Equal", 5, 8),
    Sketcher.Constraint("Equal", 8, 10),
    Sketcher.Constraint("Equal", 6, 13),
    Sketcher.Constraint("Horizontal", 5, 3, 8, 3),
    Sketcher.Constraint("Horizontal", 3, 3, 10, 3),
    Sketcher.Constraint("Horizontal", 6, 3, 13, 3),
    Sketcher.Constraint("Equal", 2, 7),
    Sketcher.Constraint("Diameter", 6, Q("4 mm")),
    Sketcher.Constraint("Radius", 3, Q("6 mm")),
    Sketcher.Constraint("DistanceX", 0, 1, 0, 2, Q("14 mm")),
    Sketcher.Constraint("DistanceY", 1, 2, 1, 1, Q("20 mm")),
    Sketcher.Constraint("DistanceX", 3, 3, 6, 3, Q("4 mm")),
    Sketcher.Constraint("DistanceY", 3, 3, 6, 3, Q("4 mm")),
    Sketcher.Constraint("DistanceX", 6, 3, 8, 3, Q("214 mm")),
    Sketcher.Constraint("DistanceX", 13, 3, 8, 3, Q("4 mm")),
    Sketcher.Constraint("DistanceX", 3, 3, -1, 1, Q("90.66 mm")),
    Sketcher.Constraint("DistanceY", 3, 3, -1, 1, Q("24.87 mm")),
])
sketch13.setExpression("Constraints[28]", "Params.sketch13_diameter")
sketch13.setExpression("Constraints[29]", "Params.sketch13_radius")
sketch13.setExpression("Constraints[30]", "Params.sketch13_width")
sketch13.setExpression("Constraints[31]", "Params.sketch13_height")
pad6 = body.newObject("PartDesign::Pad", "Pad005")
pad6.Profile = sketch13
pad6.setExpression("Length", "Params.pad6_length")
doc.recompute()

fillet = body.newObject("PartDesign::Fillet", "Fillet")
fillet.Base = (pad6, edges_at(pad6, [
    (-76.66, -30.87, 1.5),
    (-76.66, -10.87, 1.5),
    (113.34, -10.87, 1.5),
    (113.34, -30.87, 1.5),
]))
fillet.setExpression("Radius", "Params.fillet_radius")
doc.recompute()

fillet2 = body.newObject("PartDesign::Fillet", "Fillet001")
fillet2.Base = (fillet, edges_at(fillet, [(-76.66, -20.87, 3), (113.34, -20.87, 3)]))
fillet2.setExpression("Radius", "Params.fillet2_radius")

doc.recompute()
